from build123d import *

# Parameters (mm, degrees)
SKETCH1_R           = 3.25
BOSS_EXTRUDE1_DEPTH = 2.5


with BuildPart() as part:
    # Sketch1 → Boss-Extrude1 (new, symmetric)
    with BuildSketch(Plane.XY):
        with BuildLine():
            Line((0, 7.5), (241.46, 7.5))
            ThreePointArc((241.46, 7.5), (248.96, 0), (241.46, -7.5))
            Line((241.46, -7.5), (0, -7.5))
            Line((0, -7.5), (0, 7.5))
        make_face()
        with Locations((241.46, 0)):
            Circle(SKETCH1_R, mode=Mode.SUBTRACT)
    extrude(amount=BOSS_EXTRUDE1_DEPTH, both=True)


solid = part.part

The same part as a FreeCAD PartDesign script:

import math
import FreeCAD as App
import Part
import Sketcher
from FreeCAD import Vector
Q = App.Units.Quantity

doc = App.newDocument("Part")
body = doc.addObject("PartDesign::Body", "Body")

sketch1 = doc.addObject("Sketcher::SketchObject", "Sketch")
body.addObject(sketch1)
sketch1.AttachmentSupport = (doc.XY_Plane, [""])
sketch1.MapMode = "FlatFace"
sketch1.addGeometry(Part.LineSegment(Vector(241.5, 7.5, 0), Vector(0, 7.5, 0)), False)
sketch1.addGeometry(Part.LineSegment(Vector(0, 7.5, 0), Vector(0, -7.5, 0)), False)
sketch1.addGeometry(Part.LineSegment(Vector(0, -7.5, 0), Vector(241.5, -7.5, 0)), False)
sketch1.addGeometry(Part.ArcOfCircle(Part.Circle(Vector(241.5, 0, 0), Vector(0, 0, 1), 7.5), math.radians(-90), math.radians(90)), False)
sketch1.addGeometry(Part.Circle(Vector(241.5, 0, 0), Vector(0, 0, 1), 3.2), False)
sketch1.addConstraint(Sketcher.Constraint("Coincident", 0, 2, 1, 1))
sketch1.addConstraint(Sketcher.Constraint("Coincident", 1, 2, 2, 1))
sketch1.addConstraint(Sketcher.Constraint("Tangent", 2, 2, 3, 1))
sketch1.addConstraint(Sketcher.Constraint("Tangent", 3, 2, 0, 1))
sketch1.addConstraint(Sketcher.Constraint("Horizontal", 0))
sketch1.addConstraint(Sketcher.Constraint("Vertical", 1))
sketch1.addConstraint(Sketcher.Constraint("Horizontal", 2))
sketch1.addConstraint(Sketcher.Constraint("Coincident", 4, 3, 3, 3))
sketch1.addConstraint(Sketcher.Constraint("Symmetric", 0, 2, 1, 2, -1, 1))
sketch1.addConstraint(Sketcher.Constraint("Diameter", 4, Q("6.5 mm")))
sketch1.addConstraint(Sketcher.Constraint("Radius", 3, Q("7.5 mm")))
sketch1.addConstraint(Sketcher.Constraint("DistanceX", 0, 2, 0, 1, Q("241.46 mm")))
pad1 = doc.addObject("PartDesign::Pad", "Pad")
body.addObject(pad1)
pad1.Profile = sketch1
pad1.Length = 5
pad1.Midplane = True

doc.recompute()
